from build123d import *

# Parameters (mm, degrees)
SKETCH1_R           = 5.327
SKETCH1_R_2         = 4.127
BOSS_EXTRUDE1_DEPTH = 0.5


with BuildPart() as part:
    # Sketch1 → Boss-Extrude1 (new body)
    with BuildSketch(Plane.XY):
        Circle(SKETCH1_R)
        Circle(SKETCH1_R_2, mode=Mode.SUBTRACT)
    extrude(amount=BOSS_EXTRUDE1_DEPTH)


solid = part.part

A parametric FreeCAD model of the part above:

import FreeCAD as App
import Part
import Sketcher
from FreeCAD import Vector

doc = App.newDocument("Part")
params = doc.addObject("Spreadsheet::Sheet", "Params")
for row, (alias, value) in enumerate([
    ("pad1_length", "0.5 mm"),
], start=1):
    params.set(f"A{row}", alias)
    params.set(f"B{row}", "=" + value)
    params.setAlias(f"B{row}", alias)

body = doc.addObject("PartDesign::Body", "Body")

# Sketch on XY plane
sketch1 = doc.addObject("Sketcher::SketchObject", "Sketch")
body.addObject(sketch1)
sketch1.AttachmentSupport = (doc.XY_Plane, [""])
sketch1.MapMode = "FlatFace"
sketch1.addGeometry([
    Part.Circle(Vector(0, 0, 0), Vector(0, 0, 1), 5.3),
    Part.Circle(Vector(0, 0, 0), Vector(0, 0, 1), 4.1),
], False)
sketch1.addConstraint([
    Sketcher.Constraint("Coincident", 0, 3, -1, 1),
    Sketcher.Constraint("Coincident", 1, 3, -1, 1),
    Sketcher.Constraint("Diameter", 0, 10.654),
    Sketcher.Constraint("Diameter", 1, 8.254),
])
pad1 = doc.addObject("PartDesign::Pad", "Pad")
body.addObject(pad1)
pad1.Profile = sketch1
pad1.setExpression("Length", "Params.pad1_length")

doc.recompute()
